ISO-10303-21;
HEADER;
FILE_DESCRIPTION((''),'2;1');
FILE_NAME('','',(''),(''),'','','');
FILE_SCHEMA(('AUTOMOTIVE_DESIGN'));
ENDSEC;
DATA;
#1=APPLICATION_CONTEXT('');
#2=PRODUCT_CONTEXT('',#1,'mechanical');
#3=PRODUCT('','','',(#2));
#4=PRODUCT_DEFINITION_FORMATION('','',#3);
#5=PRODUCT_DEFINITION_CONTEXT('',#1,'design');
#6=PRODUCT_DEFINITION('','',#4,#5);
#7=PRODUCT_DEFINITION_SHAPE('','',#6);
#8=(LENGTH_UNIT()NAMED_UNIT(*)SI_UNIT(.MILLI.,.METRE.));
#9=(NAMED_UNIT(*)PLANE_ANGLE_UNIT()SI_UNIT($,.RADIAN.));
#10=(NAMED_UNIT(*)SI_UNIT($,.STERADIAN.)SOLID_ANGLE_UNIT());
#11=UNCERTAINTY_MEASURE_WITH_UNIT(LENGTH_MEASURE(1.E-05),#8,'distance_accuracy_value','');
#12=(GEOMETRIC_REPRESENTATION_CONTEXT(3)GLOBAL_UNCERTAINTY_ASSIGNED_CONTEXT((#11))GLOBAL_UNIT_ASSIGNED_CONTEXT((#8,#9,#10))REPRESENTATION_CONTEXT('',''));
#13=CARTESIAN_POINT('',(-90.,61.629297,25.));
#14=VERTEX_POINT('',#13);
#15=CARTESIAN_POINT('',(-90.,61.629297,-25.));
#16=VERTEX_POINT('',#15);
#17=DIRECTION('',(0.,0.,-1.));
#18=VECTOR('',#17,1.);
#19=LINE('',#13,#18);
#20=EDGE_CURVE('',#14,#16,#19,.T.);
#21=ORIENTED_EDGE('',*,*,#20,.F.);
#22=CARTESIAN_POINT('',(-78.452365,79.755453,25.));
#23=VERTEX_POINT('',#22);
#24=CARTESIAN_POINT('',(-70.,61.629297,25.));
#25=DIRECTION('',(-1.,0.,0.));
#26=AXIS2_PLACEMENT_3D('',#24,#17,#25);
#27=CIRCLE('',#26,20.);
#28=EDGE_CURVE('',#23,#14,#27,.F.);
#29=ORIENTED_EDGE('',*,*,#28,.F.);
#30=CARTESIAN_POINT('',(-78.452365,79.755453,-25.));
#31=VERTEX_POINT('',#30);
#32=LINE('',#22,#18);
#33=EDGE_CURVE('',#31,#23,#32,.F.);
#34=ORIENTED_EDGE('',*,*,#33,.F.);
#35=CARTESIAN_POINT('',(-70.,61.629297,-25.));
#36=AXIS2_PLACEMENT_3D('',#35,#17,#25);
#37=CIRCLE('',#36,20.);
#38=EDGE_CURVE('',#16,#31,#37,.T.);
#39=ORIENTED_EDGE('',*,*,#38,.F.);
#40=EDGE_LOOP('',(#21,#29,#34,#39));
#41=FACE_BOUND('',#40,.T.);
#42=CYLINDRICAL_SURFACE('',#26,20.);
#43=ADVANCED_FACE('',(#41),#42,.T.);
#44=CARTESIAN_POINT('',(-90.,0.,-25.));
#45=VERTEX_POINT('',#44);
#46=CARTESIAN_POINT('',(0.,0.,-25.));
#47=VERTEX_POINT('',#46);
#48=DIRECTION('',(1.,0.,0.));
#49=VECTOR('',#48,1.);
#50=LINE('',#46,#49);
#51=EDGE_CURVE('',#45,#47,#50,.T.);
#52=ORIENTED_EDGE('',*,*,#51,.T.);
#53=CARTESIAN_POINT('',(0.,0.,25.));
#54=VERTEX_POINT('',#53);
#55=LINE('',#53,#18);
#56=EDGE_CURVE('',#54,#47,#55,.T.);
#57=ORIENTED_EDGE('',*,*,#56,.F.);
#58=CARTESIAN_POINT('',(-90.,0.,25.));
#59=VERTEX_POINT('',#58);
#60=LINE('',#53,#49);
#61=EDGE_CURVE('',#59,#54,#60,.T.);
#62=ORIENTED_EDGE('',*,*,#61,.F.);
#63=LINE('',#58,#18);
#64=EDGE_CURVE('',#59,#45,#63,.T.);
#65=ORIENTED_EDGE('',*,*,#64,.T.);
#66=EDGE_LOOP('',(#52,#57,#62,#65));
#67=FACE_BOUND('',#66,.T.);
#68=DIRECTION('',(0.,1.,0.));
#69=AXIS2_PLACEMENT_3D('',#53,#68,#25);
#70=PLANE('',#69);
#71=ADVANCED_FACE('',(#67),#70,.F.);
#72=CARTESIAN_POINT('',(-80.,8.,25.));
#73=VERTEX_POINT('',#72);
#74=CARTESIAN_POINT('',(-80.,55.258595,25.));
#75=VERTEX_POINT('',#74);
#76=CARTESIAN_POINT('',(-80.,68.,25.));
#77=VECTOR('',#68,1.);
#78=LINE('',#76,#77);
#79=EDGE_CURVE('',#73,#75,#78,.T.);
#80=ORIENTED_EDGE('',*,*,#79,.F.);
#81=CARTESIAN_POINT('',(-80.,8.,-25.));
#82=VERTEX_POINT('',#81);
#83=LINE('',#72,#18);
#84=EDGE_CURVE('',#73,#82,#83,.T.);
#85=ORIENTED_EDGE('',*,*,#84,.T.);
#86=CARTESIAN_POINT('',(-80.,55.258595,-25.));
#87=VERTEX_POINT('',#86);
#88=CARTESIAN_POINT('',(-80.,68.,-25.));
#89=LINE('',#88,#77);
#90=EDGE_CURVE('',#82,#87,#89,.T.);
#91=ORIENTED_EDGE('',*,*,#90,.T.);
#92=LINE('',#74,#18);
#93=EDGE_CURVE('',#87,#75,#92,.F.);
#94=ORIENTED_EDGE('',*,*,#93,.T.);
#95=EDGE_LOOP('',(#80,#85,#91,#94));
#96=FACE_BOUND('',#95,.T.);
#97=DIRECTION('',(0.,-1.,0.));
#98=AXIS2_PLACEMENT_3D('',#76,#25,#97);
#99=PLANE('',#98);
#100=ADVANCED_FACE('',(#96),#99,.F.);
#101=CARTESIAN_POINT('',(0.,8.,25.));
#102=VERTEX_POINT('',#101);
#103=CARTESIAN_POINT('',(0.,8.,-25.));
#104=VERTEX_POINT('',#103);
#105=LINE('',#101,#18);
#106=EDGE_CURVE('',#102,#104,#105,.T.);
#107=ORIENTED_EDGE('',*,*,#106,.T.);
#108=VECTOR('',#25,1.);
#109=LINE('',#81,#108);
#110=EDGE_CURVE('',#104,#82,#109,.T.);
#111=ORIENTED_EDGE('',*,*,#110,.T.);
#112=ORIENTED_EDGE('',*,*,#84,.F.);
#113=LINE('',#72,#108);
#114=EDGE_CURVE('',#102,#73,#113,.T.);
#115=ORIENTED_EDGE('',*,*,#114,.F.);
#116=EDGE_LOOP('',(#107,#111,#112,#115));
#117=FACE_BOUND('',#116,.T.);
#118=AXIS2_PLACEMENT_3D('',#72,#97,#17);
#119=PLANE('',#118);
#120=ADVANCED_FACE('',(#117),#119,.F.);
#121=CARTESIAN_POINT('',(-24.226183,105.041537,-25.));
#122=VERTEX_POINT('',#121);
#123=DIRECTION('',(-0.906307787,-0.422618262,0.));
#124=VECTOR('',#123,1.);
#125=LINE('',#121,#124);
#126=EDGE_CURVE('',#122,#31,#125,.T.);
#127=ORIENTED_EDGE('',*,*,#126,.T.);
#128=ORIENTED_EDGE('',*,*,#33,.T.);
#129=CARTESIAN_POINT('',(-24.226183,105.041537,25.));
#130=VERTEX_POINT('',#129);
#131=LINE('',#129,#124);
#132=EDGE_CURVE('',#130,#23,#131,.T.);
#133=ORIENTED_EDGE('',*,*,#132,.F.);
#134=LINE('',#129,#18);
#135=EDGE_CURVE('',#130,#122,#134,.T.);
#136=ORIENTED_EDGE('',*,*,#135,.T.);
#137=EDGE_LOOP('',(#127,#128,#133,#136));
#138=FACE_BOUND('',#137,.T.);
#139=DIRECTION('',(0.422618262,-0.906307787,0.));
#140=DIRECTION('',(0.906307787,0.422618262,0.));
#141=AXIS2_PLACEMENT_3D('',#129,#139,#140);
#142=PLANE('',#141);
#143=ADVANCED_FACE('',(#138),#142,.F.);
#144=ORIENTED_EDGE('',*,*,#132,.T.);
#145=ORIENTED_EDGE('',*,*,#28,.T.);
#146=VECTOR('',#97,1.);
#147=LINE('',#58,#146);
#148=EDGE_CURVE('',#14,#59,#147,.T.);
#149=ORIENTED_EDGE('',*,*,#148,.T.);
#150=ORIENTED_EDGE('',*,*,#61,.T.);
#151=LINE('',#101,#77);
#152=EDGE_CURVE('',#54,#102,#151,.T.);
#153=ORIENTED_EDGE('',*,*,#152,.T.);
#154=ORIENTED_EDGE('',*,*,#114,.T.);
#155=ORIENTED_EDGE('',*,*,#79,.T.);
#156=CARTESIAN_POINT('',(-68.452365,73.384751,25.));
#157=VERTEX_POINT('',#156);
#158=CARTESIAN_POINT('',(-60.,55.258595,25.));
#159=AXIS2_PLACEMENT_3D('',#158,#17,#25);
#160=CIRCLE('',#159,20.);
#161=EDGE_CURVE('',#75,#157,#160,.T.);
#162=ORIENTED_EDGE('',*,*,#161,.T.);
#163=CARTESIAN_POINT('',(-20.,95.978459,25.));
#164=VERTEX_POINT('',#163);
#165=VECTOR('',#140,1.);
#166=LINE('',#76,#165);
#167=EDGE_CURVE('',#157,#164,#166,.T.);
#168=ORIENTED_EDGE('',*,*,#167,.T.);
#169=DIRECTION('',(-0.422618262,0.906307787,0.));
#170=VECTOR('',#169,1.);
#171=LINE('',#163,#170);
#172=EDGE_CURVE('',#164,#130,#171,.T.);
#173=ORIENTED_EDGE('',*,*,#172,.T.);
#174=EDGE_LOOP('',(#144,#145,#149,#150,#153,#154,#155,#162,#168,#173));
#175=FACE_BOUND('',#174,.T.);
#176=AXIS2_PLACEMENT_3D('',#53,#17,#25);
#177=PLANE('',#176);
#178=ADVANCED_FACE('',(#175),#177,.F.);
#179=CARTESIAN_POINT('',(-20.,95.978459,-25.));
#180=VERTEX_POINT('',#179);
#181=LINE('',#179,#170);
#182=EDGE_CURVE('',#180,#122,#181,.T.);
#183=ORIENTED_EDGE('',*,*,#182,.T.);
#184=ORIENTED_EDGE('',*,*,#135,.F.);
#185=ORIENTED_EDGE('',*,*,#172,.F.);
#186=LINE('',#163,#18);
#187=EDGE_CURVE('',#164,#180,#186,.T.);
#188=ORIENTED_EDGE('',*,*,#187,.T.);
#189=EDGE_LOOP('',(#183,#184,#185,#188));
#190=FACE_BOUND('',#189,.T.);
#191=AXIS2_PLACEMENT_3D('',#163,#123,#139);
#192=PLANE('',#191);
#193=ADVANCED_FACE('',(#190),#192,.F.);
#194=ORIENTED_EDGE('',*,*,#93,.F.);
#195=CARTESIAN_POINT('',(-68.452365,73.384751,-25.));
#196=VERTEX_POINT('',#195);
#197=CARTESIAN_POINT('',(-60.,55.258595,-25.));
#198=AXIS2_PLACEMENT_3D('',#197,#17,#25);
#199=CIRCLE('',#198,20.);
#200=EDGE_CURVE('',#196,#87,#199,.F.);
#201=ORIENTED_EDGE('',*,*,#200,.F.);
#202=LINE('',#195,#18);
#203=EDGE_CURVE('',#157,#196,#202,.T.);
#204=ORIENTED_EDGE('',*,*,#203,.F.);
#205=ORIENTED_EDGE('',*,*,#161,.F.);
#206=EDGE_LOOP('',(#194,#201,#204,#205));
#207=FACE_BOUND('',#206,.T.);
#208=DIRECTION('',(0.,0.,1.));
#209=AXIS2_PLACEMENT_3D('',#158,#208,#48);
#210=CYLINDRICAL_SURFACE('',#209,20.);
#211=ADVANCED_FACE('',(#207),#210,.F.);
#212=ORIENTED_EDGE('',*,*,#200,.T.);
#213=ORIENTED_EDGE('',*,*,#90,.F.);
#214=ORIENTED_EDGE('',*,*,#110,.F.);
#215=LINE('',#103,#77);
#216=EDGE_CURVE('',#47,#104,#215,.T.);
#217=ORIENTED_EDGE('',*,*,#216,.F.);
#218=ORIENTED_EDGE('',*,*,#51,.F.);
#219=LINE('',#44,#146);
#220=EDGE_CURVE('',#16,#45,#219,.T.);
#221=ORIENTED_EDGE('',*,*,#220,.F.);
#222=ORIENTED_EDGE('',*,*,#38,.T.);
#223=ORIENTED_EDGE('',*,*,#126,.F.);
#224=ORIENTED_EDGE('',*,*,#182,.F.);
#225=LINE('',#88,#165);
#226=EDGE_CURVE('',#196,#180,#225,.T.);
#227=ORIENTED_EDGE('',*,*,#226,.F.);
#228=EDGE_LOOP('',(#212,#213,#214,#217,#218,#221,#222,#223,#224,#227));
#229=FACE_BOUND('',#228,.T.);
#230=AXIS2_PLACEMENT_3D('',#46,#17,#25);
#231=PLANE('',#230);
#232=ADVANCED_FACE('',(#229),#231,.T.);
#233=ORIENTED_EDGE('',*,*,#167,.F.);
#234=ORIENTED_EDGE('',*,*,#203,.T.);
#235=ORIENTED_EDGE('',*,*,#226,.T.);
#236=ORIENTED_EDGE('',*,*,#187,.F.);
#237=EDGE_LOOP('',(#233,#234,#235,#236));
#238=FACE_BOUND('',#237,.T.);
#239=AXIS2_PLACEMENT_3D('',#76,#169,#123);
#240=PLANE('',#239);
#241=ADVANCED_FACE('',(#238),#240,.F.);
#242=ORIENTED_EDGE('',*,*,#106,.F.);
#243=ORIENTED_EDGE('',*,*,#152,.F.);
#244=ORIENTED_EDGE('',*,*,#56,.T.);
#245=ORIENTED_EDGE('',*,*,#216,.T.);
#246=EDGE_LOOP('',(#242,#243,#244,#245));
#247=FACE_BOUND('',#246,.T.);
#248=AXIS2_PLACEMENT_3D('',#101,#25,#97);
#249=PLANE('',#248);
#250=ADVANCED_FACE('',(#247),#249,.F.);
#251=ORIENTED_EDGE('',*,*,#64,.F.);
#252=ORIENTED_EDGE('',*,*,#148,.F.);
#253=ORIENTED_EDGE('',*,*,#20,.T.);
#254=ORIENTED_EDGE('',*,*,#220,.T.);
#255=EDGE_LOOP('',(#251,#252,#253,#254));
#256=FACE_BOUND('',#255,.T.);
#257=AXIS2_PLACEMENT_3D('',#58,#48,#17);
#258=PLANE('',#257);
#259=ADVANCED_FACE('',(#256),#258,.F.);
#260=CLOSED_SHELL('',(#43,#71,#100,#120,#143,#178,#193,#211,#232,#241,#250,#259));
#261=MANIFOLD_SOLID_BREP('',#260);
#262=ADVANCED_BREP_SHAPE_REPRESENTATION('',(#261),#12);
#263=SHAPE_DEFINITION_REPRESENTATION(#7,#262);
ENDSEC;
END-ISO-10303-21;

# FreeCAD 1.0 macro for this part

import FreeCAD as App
import Part
import Sketcher

V = App.Vector
Q = App.Units.Quantity


def edges_at(feature, points):
    """Names of the edges that pass closest to the given points."""
    edges = feature.Shape.Edges
    near = lambda p: min(range(len(edges)), key=lambda i: edges[i].distToShape(Part.Vertex(*p))[0])
    return sorted({f"Edge{near(p) + 1}" for p in points})

doc = App.newDocument("Part")
body = doc.addObject("PartDesign::Body", "Body")

sketch1 = body.newObject("Sketcher::SketchObject", "Sketch")
sketch1.AttachmentSupport = (doc.getObject("XY_Plane"), [""])
sketch1.MapMode = "FlatFace"
sketch1.addGeometry(Part.LineSegment(V(0, 0, 0), V(0, 8, 0)), False)
sketch1.addGeometry(Part.LineSegment(V(0, 8, 0), V(-80, 8, 0)), False)
sketch1.addGeometry(Part.LineSegment(V(-80, 8, 0), V(-80, 68, 0)), False)
sketch1.addGeometry(Part.LineSegment(V(-80, 68, 0), V(-20, 96, 0)), False)
sketch1.addGeometry(Part.LineSegment(V(-20, 96, 0), V(-24, 105, 0)), False)
sketch1.addGeometry(Part.LineSegment(V(-24, 105, 0), V(-90, 74, 0)), False)
sketch1.addGeometry(Part.LineSegment(V(-90, 74, 0), V(-90, 0, 0)), False)
sketch1.addGeometry(Part.LineSegment(V(-90, 0, 0), V(0, 0, 0)), False)
sketch1.addConstraint(Sketcher.Constraint("Coincident", 0, 2, 1, 1))
sketch1.addConstraint(Sketcher.Constraint("Coincident", 1, 2, 2, 1))
sketch1.addConstraint(Sketcher.Constraint("Coincident", 2, 2, 3, 1))
sketch1.addConstraint(Sketcher.Constraint("Coincident", 3, 2, 4, 1))
sketch1.addConstraint(Sketcher.Constraint("Coincident", 4, 2, 5, 1))
sketch1.addConstraint(Sketcher.Constraint("Coincident", 5, 2, 6, 1))
sketch1.addConstraint(Sketcher.Constraint("Coincident", 6, 2, 7, 1))
sketch1.addConstraint(Sketcher.Constraint("Coincident", 7, 2, 0, 1))
sketch1.addConstraint(Sketcher.Constraint("Vertical", 0))
sketch1.addConstraint(Sketcher.Constraint("Horizontal", 1))
sketch1.addConstraint(Sketcher.Constraint("Vertical", 2))
sketch1.addConstraint(Sketcher.Constraint("Vertical", 6))
sketch1.addConstraint(Sketcher.Constraint("Horizontal", 7))
sketch1.addConstraint(Sketcher.Constraint("Coincident", 7, 2, -1, 1))
sketch1.addConstraint(Sketcher.Constraint("Perpendicular", 3, 4))
sketch1.addConstraint(Sketcher.Constraint("Perpendicular", 4, 5))
sketch1.addConstraint(Sketcher.Constraint("DistanceX", 1, 2, 1, 1, Q("80 mm")))
sketch1.addConstraint(Sketcher.Constraint("DistanceX", 7, 1, 7, 2, Q("90 mm")))
sketch1.addConstraint(Sketcher.Constraint("DistanceY", 0, 1, 0, 2, Q("8 mm")))
sketch1.addConstraint(Sketcher.Constraint("DistanceY", 2, 1, 2, 2, Q("60 mm")))
sketch1.addConstraint(Sketcher.Constraint("Angle", 3, Q("25 deg")))
sketch1.addConstraint(Sketcher.Constraint("Distance", 4, Q("10 mm")))
sketch1.addConstraint(Sketcher.Constraint("DistanceX", 3, 2, -1, 1, Q("20 mm")))
pad1 = body.newObject("PartDesign::Pad", "Pad")
pad1.Profile = sketch1
pad1.Length = 50
pad1.Midplane = True
doc.recompute()

fillet = body.newObject("PartDesign::Fillet", "Fillet")
fillet.Base = (pad1, edges_at(pad1, [(-90, 74.371, 0), (-80, 68, 0)]))
fillet.Radius = 20

doc.recompute()
